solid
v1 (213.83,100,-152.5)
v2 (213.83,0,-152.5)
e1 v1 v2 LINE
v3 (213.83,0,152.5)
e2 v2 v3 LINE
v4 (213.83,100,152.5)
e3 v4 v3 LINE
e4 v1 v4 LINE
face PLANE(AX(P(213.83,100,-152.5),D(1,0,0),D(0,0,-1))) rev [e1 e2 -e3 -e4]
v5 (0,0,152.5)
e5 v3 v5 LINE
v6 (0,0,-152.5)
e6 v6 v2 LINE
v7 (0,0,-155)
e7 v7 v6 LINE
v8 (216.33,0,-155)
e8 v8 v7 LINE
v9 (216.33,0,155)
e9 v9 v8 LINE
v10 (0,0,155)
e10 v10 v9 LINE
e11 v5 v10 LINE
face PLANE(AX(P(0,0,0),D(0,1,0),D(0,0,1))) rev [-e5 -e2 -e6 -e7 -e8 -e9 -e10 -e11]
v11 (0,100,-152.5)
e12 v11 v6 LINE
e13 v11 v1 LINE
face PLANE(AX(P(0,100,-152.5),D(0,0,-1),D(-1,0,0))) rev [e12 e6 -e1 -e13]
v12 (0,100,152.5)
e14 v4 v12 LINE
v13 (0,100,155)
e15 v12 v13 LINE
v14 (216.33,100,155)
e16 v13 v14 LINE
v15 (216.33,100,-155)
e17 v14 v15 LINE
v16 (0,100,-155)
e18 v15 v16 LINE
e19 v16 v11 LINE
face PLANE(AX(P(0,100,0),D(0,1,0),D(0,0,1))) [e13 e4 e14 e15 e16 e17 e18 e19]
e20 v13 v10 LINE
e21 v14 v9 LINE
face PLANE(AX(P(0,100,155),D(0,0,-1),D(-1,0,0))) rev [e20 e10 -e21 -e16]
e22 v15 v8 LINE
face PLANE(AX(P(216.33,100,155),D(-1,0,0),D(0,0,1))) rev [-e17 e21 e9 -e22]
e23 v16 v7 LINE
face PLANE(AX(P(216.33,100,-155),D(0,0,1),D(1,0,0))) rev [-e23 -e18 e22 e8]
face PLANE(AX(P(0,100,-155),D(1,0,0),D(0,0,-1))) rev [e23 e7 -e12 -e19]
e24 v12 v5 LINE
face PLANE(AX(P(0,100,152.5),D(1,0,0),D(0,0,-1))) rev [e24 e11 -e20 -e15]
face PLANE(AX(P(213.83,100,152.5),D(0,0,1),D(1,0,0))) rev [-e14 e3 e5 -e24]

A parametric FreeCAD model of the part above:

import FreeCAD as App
import Part
import Sketcher
from FreeCAD import Vector
Q = App.Units.Quantity

doc = App.newDocument("Part")
body = doc.addObject("PartDesign::Body", "Body")

# Sketch on XZ plane
sketch1 = body.newObject("Sketcher::SketchObject", "Sketch")
sketch1.AttachmentSupport = (doc.getObject("XZ_Plane"), [""])
sketch1.MapMode = "FlatFace"
sketch1.addGeometry(Part.LineSegment(Vector(0, -152.5, 0), Vector(213.8, -152.5, 0)), False)
sketch1.addGeometry(Part.LineSegment(Vector(213.8, -152.5, 0), Vector(213.8, 152.5, 0)), False)
sketch1.addGeometry(Part.LineSegment(Vector(213.8, 152.5, 0), Vector(0, 152.5, 0)), False)
sketch1.addGeometry(Part.LineSegment(Vector(0, 152.5, 0), Vector(0, 155, 0)), False)
sketch1.addGeometry(Part.LineSegment(Vector(0, 155, 0), Vector(216.3, 155, 0)), False)
sketch1.addGeometry(Part.LineSegment(Vector(216.3, 155, 0), Vector(216.3, -155, 0)), False)
sketch1.addGeometry(Part.LineSegment(Vector(216.3, -155, 0), Vector(0, -155, 0)), False)
sketch1.addGeometry(Part.LineSegment(Vector(0, -155, 0), Vector(0, -152.5, 0)), False)
sketch1.addConstraint(Sketcher.Constraint("Coincident", 0, 2, 1, 1))
sketch1.addConstraint(Sketcher.Constraint("Coincident", 1, 2, 2, 1))
sketch1.addConstraint(Sketcher.Constraint("Coincident", 2, 2, 3, 1))
sketch1.addConstraint(Sketcher.Constraint("Coincident", 3, 2, 4, 1))
sketch1.addConstraint(Sketcher.Constraint("Coincident", 4, 2, 5, 1))
sketch1.addConstraint(Sketcher.Constraint("Coincident", 5, 2, 6, 1))
sketch1.addConstraint(Sketcher.Constraint("Coincident", 6, 2, 7, 1))
sketch1.addConstraint(Sketcher.Constraint("Coincident", 7, 2, 0, 1))
sketch1.addConstraint(Sketcher.Constraint("Horizontal", 0))
sketch1.addConstraint(Sketcher.Constraint("Vertical", 1))
sketch1.addConstraint(Sketcher.Constraint("Horizontal", 2))
sketch1.addConstraint(Sketcher.Constraint("Vertical", 3))
sketch1.addConstraint(Sketcher.Constraint("Horizontal", 4))
sketch1.addConstraint(Sketcher.Constraint("Vertical", 5))
sketch1.addConstraint(Sketcher.Constraint("Horizontal", 6))
sketch1.addConstraint(Sketcher.Constraint("Vertical", 7))
sketch1.addConstraint(Sketcher.Constraint("Symmetric", 3, 2, 6, 2, -1, 1))
sketch1.addConstraint(Sketcher.Constraint("Symmetric", 2, 2, 7, 2, -1))
sketch1.addConstraint(Sketcher.Constraint("DistanceY", 1, 1, 1, 2, Q("305 mm")))
sketch1.addConstraint(Sketcher.Constraint("DistanceY", 5, 2, 5, 1, Q("310 mm")))
sketch1.addConstraint(Sketcher.Constraint("DistanceX", 0, 1, 0, 2, Q("213.83 mm")))
sketch1.addConstraint(Sketcher.Constraint("DistanceX", 4, 1, 4, 2, Q("216.33 mm")))
pad1 = body.newObject("PartDesign::Pad", "Pad")
pad1.Profile = sketch1
pad1.Length = 100
pad1.Reversed = True

doc.recompute()
